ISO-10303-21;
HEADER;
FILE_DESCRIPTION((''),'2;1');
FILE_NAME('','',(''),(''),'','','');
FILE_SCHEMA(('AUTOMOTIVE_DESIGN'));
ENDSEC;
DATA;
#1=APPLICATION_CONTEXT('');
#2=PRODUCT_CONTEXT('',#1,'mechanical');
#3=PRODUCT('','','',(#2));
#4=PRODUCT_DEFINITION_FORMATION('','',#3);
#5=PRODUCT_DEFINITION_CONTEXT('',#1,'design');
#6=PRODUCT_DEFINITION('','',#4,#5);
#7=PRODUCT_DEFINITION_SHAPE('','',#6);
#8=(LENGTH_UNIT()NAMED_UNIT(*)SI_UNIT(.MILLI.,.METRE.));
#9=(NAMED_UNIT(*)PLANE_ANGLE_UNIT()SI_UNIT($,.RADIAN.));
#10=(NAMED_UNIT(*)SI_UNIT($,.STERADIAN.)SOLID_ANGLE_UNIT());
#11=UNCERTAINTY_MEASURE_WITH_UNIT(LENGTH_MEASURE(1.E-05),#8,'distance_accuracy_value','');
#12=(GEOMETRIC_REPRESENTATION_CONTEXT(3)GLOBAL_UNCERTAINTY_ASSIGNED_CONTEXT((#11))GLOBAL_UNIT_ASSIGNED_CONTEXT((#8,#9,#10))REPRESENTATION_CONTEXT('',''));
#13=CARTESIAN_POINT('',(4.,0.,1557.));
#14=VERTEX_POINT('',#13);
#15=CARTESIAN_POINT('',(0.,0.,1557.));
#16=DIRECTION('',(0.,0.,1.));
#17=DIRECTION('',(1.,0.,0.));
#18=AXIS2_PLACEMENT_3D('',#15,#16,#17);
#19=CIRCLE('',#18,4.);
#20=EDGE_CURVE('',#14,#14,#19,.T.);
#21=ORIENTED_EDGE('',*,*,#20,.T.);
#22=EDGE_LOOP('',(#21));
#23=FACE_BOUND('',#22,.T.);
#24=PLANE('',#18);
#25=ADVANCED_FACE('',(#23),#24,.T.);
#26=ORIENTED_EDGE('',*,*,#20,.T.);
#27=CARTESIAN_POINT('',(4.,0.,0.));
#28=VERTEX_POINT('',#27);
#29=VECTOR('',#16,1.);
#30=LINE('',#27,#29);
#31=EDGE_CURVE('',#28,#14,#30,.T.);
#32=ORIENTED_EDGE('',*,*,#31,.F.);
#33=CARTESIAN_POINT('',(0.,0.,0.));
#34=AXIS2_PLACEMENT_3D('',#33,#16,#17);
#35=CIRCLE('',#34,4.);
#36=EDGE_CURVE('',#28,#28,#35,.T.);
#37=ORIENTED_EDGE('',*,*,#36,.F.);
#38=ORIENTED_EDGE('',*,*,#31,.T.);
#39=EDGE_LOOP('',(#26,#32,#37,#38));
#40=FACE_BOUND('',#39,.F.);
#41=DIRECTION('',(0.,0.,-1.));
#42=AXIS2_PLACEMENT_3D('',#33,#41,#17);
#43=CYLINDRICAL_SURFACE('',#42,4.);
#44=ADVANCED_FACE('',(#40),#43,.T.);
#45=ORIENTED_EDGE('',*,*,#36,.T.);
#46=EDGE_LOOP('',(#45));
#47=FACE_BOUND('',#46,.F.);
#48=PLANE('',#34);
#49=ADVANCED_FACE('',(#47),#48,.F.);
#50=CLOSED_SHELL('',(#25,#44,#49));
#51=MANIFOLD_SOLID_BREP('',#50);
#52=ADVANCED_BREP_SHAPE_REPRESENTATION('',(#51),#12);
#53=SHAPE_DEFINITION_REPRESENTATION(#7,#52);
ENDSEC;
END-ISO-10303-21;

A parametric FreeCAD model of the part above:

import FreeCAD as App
import Part
import Sketcher

doc = App.newDocument("Part")
body = doc.addObject("PartDesign::Body", "Body")

# Sketch on XY plane
sketch1 = doc.addObject("Sketcher::SketchObject", "Sketch")
body.addObject(sketch1)
sketch1.AttachmentSupport = (doc.XY_Plane, [""])
sketch1.MapMode = "FlatFace"
sketch1.addGeometry(Part.Circle(App.Vector(0, 0, 0), App.Vector(0, 0, 1), 4), False)
sketch1.addConstraint([
    Sketcher.Constraint("Coincident", 0, 3, -1, 1),
    Sketcher.Constraint("Diameter", 0, 8.0),
])
pad1 = doc.addObject("PartDesign::Pad", "Pad")
body.addObject(pad1)
pad1.Profile = sketch1
pad1.Length = 1557

doc.recompute()
